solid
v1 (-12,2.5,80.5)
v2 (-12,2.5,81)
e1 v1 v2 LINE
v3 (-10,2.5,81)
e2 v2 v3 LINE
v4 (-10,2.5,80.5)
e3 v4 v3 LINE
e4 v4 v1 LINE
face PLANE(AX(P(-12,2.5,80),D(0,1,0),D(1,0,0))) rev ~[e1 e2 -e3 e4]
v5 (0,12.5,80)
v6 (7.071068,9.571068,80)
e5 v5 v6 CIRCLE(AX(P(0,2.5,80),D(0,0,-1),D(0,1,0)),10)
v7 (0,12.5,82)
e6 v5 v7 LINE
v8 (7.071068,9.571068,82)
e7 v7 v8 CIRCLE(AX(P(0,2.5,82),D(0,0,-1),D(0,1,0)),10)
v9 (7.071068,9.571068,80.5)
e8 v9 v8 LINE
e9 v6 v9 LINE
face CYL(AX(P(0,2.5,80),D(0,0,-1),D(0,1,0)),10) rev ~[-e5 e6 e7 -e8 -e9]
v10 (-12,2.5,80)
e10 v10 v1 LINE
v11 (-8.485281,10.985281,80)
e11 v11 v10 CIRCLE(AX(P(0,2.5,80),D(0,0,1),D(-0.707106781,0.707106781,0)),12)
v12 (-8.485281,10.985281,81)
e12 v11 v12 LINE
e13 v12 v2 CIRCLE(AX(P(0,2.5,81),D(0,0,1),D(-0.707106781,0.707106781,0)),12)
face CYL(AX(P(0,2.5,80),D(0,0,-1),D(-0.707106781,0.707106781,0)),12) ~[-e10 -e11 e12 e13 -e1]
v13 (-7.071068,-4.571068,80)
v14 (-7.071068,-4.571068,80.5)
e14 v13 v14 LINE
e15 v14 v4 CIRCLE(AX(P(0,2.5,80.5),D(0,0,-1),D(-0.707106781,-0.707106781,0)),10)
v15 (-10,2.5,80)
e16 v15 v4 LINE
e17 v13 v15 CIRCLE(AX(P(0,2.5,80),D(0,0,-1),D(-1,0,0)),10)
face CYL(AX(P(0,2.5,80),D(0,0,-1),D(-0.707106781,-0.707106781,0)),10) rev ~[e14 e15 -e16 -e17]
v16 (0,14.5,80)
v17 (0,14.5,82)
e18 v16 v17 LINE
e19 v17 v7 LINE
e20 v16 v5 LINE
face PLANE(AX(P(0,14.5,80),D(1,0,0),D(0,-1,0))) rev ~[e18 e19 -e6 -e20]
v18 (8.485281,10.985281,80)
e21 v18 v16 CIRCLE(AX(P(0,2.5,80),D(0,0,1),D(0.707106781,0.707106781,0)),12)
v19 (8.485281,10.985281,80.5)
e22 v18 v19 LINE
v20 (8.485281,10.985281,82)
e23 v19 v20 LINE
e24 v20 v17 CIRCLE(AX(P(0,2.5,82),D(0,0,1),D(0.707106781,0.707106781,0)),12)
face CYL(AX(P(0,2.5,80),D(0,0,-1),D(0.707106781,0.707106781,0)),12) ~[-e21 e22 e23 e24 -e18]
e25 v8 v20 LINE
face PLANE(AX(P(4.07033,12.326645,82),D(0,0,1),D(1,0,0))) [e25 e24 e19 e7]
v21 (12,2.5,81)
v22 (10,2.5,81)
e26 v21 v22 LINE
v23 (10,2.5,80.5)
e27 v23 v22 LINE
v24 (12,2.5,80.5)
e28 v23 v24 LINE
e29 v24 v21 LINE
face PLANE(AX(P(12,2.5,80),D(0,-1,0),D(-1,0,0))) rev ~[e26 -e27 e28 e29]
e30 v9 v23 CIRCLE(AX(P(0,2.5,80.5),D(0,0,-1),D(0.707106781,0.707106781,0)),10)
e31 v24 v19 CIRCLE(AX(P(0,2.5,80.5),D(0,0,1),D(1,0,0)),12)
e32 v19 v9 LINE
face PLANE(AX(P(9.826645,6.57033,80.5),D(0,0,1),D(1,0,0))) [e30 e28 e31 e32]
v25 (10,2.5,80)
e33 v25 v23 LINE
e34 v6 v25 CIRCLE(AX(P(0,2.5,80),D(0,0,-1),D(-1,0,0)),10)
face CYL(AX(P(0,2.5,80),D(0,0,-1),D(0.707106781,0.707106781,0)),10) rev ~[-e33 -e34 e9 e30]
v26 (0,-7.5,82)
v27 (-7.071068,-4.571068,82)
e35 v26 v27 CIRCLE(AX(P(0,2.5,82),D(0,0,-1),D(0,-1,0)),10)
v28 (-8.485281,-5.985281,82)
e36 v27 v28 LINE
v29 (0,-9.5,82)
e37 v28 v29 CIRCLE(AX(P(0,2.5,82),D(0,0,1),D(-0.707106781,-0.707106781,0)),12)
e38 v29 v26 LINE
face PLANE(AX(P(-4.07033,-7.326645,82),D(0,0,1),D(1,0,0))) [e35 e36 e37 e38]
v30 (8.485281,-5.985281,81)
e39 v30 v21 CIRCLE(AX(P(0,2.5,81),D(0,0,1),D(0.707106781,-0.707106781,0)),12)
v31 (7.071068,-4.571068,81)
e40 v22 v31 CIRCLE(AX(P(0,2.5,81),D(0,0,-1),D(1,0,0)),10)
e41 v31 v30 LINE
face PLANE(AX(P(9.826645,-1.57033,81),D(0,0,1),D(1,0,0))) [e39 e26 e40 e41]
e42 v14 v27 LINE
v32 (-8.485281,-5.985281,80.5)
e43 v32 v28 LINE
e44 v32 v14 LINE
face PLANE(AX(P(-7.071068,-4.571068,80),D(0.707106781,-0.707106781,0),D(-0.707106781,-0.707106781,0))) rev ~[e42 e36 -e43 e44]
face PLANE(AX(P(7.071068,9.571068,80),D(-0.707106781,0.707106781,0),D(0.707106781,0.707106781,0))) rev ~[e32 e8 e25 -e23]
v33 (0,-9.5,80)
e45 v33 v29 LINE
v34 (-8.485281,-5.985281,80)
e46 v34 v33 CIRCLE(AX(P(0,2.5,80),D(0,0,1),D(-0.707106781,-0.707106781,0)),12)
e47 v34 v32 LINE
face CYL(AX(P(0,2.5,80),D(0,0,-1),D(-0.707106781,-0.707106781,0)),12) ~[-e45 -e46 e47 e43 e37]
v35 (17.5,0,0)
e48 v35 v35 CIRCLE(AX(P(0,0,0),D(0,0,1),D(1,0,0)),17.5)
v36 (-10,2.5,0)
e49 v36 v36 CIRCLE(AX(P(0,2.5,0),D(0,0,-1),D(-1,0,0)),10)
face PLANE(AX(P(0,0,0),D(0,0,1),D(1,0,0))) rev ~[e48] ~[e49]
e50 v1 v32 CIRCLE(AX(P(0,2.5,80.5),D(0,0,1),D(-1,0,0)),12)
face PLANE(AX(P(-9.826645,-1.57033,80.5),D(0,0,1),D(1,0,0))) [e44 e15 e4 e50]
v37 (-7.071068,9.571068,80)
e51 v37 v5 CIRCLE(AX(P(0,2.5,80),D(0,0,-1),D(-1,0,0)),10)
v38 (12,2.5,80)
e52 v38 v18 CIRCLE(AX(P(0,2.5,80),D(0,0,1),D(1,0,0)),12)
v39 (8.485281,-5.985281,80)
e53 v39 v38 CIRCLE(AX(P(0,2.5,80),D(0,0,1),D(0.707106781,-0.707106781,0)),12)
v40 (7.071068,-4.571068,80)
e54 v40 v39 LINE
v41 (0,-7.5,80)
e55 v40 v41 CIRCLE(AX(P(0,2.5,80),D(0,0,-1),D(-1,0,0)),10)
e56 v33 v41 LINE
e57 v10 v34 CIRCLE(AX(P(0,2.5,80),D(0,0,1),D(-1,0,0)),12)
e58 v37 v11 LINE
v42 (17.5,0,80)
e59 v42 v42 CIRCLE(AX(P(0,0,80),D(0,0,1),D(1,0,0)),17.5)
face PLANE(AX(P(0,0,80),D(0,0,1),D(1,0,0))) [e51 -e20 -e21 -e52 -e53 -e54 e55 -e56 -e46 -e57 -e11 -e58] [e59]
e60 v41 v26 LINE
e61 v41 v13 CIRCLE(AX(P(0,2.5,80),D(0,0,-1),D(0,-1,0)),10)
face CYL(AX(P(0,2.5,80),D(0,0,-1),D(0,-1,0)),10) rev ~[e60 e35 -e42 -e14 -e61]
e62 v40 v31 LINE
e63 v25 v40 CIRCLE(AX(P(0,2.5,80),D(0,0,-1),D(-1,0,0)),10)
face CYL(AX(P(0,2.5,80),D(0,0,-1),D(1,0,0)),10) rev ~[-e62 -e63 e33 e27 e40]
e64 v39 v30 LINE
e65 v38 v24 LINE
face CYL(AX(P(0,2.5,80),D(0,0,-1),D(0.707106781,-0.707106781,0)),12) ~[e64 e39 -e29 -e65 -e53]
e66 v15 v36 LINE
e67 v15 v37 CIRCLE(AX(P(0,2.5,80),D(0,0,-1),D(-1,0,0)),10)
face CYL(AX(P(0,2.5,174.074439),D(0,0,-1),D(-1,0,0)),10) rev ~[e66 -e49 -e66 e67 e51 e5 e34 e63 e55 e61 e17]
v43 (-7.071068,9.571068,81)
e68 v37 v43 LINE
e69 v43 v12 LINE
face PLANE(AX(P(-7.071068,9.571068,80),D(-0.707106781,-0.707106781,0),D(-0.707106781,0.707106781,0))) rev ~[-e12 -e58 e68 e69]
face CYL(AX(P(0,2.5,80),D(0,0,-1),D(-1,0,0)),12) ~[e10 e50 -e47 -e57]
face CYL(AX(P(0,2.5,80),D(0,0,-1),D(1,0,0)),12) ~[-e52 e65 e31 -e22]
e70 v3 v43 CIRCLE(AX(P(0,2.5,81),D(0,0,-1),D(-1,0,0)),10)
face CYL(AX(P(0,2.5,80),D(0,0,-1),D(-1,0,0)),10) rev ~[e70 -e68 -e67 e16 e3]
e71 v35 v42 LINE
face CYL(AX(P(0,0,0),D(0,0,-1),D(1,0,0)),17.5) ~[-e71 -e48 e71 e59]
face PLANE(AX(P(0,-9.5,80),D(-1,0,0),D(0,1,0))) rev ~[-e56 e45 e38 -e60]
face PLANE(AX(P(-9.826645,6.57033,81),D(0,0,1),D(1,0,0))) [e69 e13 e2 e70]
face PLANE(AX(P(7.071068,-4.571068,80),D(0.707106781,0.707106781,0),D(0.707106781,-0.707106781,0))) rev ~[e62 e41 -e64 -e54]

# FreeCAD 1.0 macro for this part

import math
import FreeCAD as App
import Part
import Sketcher

V = App.Vector
Q = App.Units.Quantity

doc = App.newDocument("Part")
body = doc.addObject("PartDesign::Body", "Body")

sketch1 = body.newObject("Sketcher::SketchObject", "Sketch")
sketch1.AttachmentSupport = (doc.getObject("XY_Plane"), [""])
sketch1.MapMode = "FlatFace"
sketch1.addGeometry(Part.Circle(V(0, 0, 0), V(0, 0, 1), 17.5), False)
sketch1.addConstraint([
    Sketcher.Constraint("Coincident", 0, 3, -1, 1),
    Sketcher.Constraint("Diameter", 0, 35.0),
])
pad1 = body.newObject("PartDesign::Pad", "Pad")
pad1.Profile = sketch1
pad1.Length = 80

sketch2 = body.newObject("Sketcher::SketchObject", "Sketch001")
sketch2.AttachmentSupport = (doc.getObject("XY_Plane"), [""])
sketch2.MapMode = "FlatFace"
sketch2.AttachmentOffset = App.Placement(V(0, 0, 80), App.Rotation())
sketch2.addGeometry(Part.Circle(V(0, 2.5, 0), V(0, 0, 1), 10), False)
sketch2.addConstraint([
    Sketcher.Constraint("PointOnObject", 0, 3, -2),
    Sketcher.Constraint("Diameter", 0, 20.0),
    Sketcher.Constraint("DistanceY", -1, 1, 0, 3, 2.5),
])
doc.recompute()
hole = body.newObject("PartDesign::Hole", "Hole")
hole.Profile = sketch2
hole.ThreadType = "None"
hole.Diameter = 20
hole.DepthType = "ThroughAll"

sketch3 = body.newObject("Sketcher::SketchObject", "Sketch002")
sketch3.AttachmentSupport = (doc.getObject("XY_Plane"), [""])
sketch3.MapMode = "FlatFace"
sketch3.AttachmentOffset = App.Placement(V(0, 0, 80), App.Rotation())
sketch3.addGeometry([
    Part.LineSegment(V(0, -9.5, 0), V(0, -7.5, 0)),
    Part.ArcOfCircle(Part.Circle(V(0, 2.5, 0), V(0, 0, 1), 10), math.radians(-135), math.radians(-90)),
    Part.LineSegment(V(-7.071068, -4.571068, 0), V(-8.485281, -5.985281, 0)),
    Part.ArcOfCircle(Part.Circle(V(0, 2.5, 0), V(0, 0, 1), 12), math.radians(-135), math.radians(-90)),
    Part.ArcOfCircle(Part.Circle(V(0, 2.5, 0), V(0, 0, 1), 10), math.radians(45), math.radians(90)),
    Part.LineSegment(V(7.071068, 9.571068, 0), V(8.485281, 10.985281, 0)),
    Part.ArcOfCircle(Part.Circle(V(0, 2.5, 0), V(0, 0, 1), 12), math.radians(45), math.radians(90)),
    Part.LineSegment(V(0, 14.5, 0), V(0, 12.5, 0)),
], False)
sketch3.addConstraint([
    Sketcher.Constraint("Coincident", 0, 2, 1, 2),
    Sketcher.Constraint("Coincident", 1, 1, 2, 1),
    Sketcher.Constraint("Coincident", 2, 2, 3, 1),
    Sketcher.Constraint("Coincident", 3, 2, 0, 1),
    Sketcher.Constraint("Coincident", 4, 1, 5, 1),
    Sketcher.Constraint("Coincident", 5, 2, 6, 1),
    Sketcher.Constraint("Coincident", 6, 2, 7, 1),
    Sketcher.Constraint("Coincident", 7, 2, 4, 2),
    Sketcher.Constraint("Vertical", 0),
    Sketcher.Constraint("Vertical", 7),
    Sketcher.Constraint("Coincident", 3, 3, 1, 3),
    Sketcher.Constraint("Coincident", 4, 3, 1, 3),
    Sketcher.Constraint("Coincident", 6, 3, 1, 3),
    Sketcher.Constraint("Equal", 1, 4),
    Sketcher.Constraint("Equal", 3, 6),
    Sketcher.Constraint("PointOnObject", 1, 3, -2),
    Sketcher.Constraint("PointOnObject", 0, 2, -2),
    Sketcher.Constraint("PointOnObject", 6, 2, -2),
    Sketcher.Constraint("Parallel", 2, 5),
    Sketcher.Constraint("Radius", 1, 10.0),
    Sketcher.Constraint("Radius", 3, 12.0),
    Sketcher.Constraint("Angle", 2, Q("-135 deg")),
    Sketcher.Constraint("DistanceY", -1, 1, 1, 3, 2.5),
    Sketcher.Constraint("DistanceX", 2, 2, -1, 1, 8.485281),
    Sketcher.Constraint("DistanceX", -1, 1, 5, 2, 8.485281),
])
pad2 = body.newObject("PartDesign::Pad", "Pad001")
pad2.Profile = sketch3
pad2.Length = 2

sketch4 = body.newObject("Sketcher::SketchObject", "Sketch003")
sketch4.AttachmentSupport = (doc.getObject("XY_Plane"), [""])
sketch4.MapMode = "FlatFace"
sketch4.AttachmentOffset = App.Placement(V(0, 0, 80), App.Rotation())
sketch4.addGeometry([
    Part.LineSegment(V(-8.485281, -5.985281, 0), V(-7.071068, -4.571068, 0)),
    Part.ArcOfCircle(Part.Circle(V(0, 2.5, 0), V(0, 0, 1), 10), math.radians(180), math.radians(225)),
    Part.LineSegment(V(-10, 2.5, 0), V(-12, 2.5, 0)),
    Part.ArcOfCircle(Part.Circle(V(0, 2.5, 0), V(0, 0, 1), 12), math.radians(180), math.radians(225)),
    Part.ArcOfCircle(Part.Circle(V(0, 2.5, 0), V(0, 0, 1), 10), math.radians(0), math.radians(45)),
    Part.LineSegment(V(10, 2.5, 0), V(12, 2.5, 0)),
    Part.ArcOfCircle(Part.Circle(V(0, 2.5, 0), V(0, 0, 1), 12), math.radians(0), math.radians(45)),
    Part.LineSegment(V(8.485281, 10.985281, 0), V(7.071068, 9.571068, 0)),
], False)
sketch4.addConstraint([
    Sketcher.Constraint("Coincident", 0, 2, 1, 2),
    Sketcher.Constraint("Coincident", 1, 1, 2, 1),
    Sketcher.Constraint("Coincident", 2, 2, 3, 1),
    Sketcher.Constraint("Coincident", 3, 2, 0, 1),
    Sketcher.Constraint("Coincident", 4, 1, 5, 1),
    Sketcher.Constraint("Coincident", 5, 2, 6, 1),
    Sketcher.Constraint("Coincident", 6, 2, 7, 1),
    Sketcher.Constraint("Coincident", 7, 2, 4, 2),
    Sketcher.Constraint("Horizontal", 2),
    Sketcher.Constraint("Horizontal", 5),
    Sketcher.Constraint("Coincident", 3, 3, 1, 3),
    Sketcher.Constraint("Coincident", 4, 3, 1, 3),
    Sketcher.Constraint("Coincident", 6, 3, 1, 3),
    Sketcher.Constraint("Equal", 1, 4),
    Sketcher.Constraint("Equal", 3, 6),
    Sketcher.Constraint("Symmetric", 1, 1, 4, 1, -2),
    Sketcher.Constraint("Parallel", 0, 7),
    Sketcher.Constraint("Horizontal", 6, 3, 1, 1),
    Sketcher.Constraint("Radius", 1, 10.0),
    Sketcher.Constraint("Radius", 3, 12.0),
    Sketcher.Constraint("Angle", 0, Q("45 deg")),
    Sketcher.Constraint("DistanceY", -1, 1, 1, 3, 2.5),
    Sketcher.Constraint("DistanceX", 3, 2, -1, 1, 8.485281),
    Sketcher.Constraint("DistanceX", -1, 1, 6, 2, 8.485281),
])
pad3 = body.newObject("PartDesign::Pad", "Pad002")
pad3.Profile = sketch4
pad3.Length = 0.5

sketch5 = body.newObject("Sketcher::SketchObject", "Sketch004")
sketch5.AttachmentSupport = (doc.getObject("XY_Plane"), [""])
sketch5.MapMode = "FlatFace"
sketch5.AttachmentOffset = App.Placement(V(0, 0, 80), App.Rotation())
sketch5.addGeometry([
    Part.LineSegment(V(-12, 2.5, 0), V(-10, 2.5, 0)),
    Part.ArcOfCircle(Part.Circle(V(0, 2.5, 0), V(0, 0, 1), 10), math.radians(135), math.radians(180)),
    Part.LineSegment(V(-7.071068, 9.571068, 0), V(-8.485281, 10.985281, 0)),
    Part.ArcOfCircle(Part.Circle(V(0, 2.5, 0), V(0, 0, 1), 12), math.radians(135), math.radians(180)),
    Part.LineSegment(V(12, 2.5, 0), V(10, 2.5, 0)),
    Part.ArcOfCircle(Part.Circle(V(0, 2.5, 0), V(0, 0, 1), 10), math.radians(-45), math.radians(0)),
    Part.LineSegment(V(7.071068, -4.571068, 0), V(8.485281, -5.985281, 0)),
    Part.ArcOfCircle(Part.Circle(V(0, 2.5, 0), V(0, 0, 1), 12), math.radians(-45), math.radians(0)),
], False)
sketch5.addConstraint([
    Sketcher.Constraint("Coincident", 0, 2, 1, 2),
    Sketcher.Constraint("Coincident", 1, 1, 2, 1),
    Sketcher.Constraint("Coincident", 2, 2, 3, 1),
    Sketcher.Constraint("Coincident", 3, 2, 0, 1),
    Sketcher.Constraint("Coincident", 4, 2, 5, 2),
    Sketcher.Constraint("Coincident", 5, 1, 6, 1),
    Sketcher.Constraint("Coincident", 6, 2, 7, 1),
    Sketcher.Constraint("Coincident", 7, 2, 4, 1),
    Sketcher.Constraint("Horizontal", 0),
    Sketcher.Constraint("Horizontal", 4),
    Sketcher.Constraint("Coincident", 3, 3, 1, 3),
    Sketcher.Constraint("Coincident", 5, 3, 1, 3),
    Sketcher.Constraint("Coincident", 7, 3, 1, 3),
    Sketcher.Constraint("Equal", 1, 5),
    Sketcher.Constraint("Equal", 3, 7),
    Sketcher.Constraint("Symmetric", 0, 2, 4, 2, -2),
    Sketcher.Constraint("Parallel", 2, 6),
    Sketcher.Constraint("Horizontal", 7, 3, 0, 2),
    Sketcher.Constraint("Radius", 1, 10.0),
    Sketcher.Constraint("Radius", 3, 12.0),
    Sketcher.Constraint("Angle", 2, Q("135 deg")),
    Sketcher.Constraint("DistanceY", -1, 1, 1, 3, 2.5),
    Sketcher.Constraint("DistanceX", 2, 2, -1, 1, 8.485281),
    Sketcher.Constraint("DistanceX", -1, 1, 6, 2, 8.485281),
])
pad4 = body.newObject("PartDesign::Pad", "Pad003")
pad4.Profile = sketch5
pad4.Length = 1

doc.recompute()
